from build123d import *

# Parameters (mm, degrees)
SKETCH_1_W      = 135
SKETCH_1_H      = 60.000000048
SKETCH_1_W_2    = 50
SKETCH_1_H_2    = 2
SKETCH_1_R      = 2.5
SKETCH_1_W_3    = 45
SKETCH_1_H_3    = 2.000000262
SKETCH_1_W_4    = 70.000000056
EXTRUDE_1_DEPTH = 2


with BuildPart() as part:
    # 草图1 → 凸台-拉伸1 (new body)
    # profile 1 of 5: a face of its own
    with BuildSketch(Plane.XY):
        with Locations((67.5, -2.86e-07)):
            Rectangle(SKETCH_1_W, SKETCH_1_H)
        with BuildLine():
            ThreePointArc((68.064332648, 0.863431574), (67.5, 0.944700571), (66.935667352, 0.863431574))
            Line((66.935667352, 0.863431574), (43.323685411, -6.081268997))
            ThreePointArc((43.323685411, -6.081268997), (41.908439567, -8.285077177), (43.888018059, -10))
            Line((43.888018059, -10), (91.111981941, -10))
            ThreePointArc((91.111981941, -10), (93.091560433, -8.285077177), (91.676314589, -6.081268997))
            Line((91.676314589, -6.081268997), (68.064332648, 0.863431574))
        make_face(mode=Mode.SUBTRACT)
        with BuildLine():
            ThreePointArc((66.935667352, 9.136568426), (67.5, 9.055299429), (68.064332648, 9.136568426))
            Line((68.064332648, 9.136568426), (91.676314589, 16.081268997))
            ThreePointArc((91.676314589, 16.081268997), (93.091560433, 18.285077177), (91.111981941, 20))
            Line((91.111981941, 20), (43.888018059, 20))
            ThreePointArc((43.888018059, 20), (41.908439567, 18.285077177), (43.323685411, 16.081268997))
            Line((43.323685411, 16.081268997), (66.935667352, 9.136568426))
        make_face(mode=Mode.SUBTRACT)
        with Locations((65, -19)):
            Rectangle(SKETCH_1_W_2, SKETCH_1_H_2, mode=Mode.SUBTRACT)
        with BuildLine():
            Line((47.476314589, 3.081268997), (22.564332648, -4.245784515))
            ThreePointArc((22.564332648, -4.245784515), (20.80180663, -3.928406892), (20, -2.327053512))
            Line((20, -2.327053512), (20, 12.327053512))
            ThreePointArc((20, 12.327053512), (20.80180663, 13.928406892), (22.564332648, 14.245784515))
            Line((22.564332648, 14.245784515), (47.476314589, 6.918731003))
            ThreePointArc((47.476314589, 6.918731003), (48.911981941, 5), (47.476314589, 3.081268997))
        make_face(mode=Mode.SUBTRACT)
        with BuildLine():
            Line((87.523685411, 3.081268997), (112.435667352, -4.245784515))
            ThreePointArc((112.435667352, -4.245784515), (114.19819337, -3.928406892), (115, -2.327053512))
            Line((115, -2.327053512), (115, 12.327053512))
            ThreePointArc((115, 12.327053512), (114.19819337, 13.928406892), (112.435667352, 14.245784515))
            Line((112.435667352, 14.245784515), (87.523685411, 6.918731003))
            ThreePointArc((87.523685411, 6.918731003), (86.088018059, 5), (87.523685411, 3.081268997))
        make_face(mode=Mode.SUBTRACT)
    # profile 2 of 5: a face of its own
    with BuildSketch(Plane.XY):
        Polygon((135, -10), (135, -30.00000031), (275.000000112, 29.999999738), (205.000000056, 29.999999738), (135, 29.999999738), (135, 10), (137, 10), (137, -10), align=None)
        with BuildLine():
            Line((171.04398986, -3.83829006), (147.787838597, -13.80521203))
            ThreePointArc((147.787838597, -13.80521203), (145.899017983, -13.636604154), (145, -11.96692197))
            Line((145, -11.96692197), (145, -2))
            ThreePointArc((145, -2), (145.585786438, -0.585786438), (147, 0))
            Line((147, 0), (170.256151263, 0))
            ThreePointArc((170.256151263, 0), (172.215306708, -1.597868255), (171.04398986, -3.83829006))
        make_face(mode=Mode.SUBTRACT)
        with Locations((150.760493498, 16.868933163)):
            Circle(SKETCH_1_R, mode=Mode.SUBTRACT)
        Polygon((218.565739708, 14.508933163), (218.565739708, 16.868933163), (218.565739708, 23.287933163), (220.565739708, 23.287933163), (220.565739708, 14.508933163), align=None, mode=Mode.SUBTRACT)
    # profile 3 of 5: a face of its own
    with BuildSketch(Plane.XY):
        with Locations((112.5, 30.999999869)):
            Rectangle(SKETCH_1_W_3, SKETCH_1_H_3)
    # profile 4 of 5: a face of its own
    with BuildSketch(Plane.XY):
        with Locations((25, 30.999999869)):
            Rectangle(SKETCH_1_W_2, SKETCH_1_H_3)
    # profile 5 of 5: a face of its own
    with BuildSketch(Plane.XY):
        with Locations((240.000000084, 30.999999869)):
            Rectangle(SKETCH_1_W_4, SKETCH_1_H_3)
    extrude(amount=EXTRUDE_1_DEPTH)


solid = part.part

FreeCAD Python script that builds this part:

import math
import FreeCAD as App
import Part
import Sketcher

V = App.Vector
Q = App.Units.Quantity

doc = App.newDocument("Part")
body = doc.addObject("PartDesign::Body", "Body")

# Sketch on XY plane
sketch1 = body.newObject("Sketcher::SketchObject", "Sketch")
sketch1.AttachmentSupport = (doc.getObject("XY_Plane"), [""])
sketch1.MapMode = "FlatFace"
sketch1.addGeometry([
    Part.LineSegment(V(0, -30, 0), V(135, -30, 0)),  # 0
    Part.LineSegment(V(135, -30, 0), V(275, 30, 0)),  # 1
    Part.LineSegment(V(275, 30, 0), V(275, 32, 0)),  # 2
    Part.LineSegment(V(275, 32, 0), V(205, 32, 0)),  # 3
    Part.LineSegment(V(205, 32, 0), V(205, 30, 0)),  # 4
    Part.LineSegment(V(205, 30, 0), V(135, 30, 0)),  # 5
    Part.LineSegment(V(135, 30, 0), V(135, 32, 0)),  # 6
    Part.LineSegment(V(135, 32, 0), V(90, 32, 0)),  # 7
    Part.LineSegment(V(90, 32, 0), V(90, 30, 0)),  # 8
    Part.LineSegment(V(90, 30, 0), V(50, 30, 0)),  # 9
    Part.LineSegment(V(50, 30, 0), V(50, 32, 0)),  # 10
    Part.LineSegment(V(50, 32, 0), V(0, 32, 0)),  # 11
    Part.LineSegment(V(0, 32, 0), V(0, -30, 0)),  # 12
    Part.LineSegment(V(135, -10, 0), V(135, 10, 0)),  # 13
    Part.LineSegment(V(135, 10, 0), V(137, 10, 0)),  # 14
    Part.LineSegment(V(137, 10, 0), V(137, -10, 0)),  # 15
    Part.LineSegment(V(137, -10, 0), V(135, -10, 0)),  # 16
    Part.LineSegment(V(90, -20, 0), V(40, -20, 0)),  # 17
    Part.LineSegment(V(40, -20, 0), V(40, -18, 0)),  # 18
    Part.LineSegment(V(40, -18, 0), V(90, -18, 0)),  # 19
    Part.LineSegment(V(90, -18, 0), V(90, -20, 0)),  # 20
    Part.ArcOfCircle(Part.Circle(V(67.5, -1.055299, 0), V(0, 0, 1), 2), math.radians(73.61046), math.radians(106.38954)),  # 21
    Part.LineSegment(V(68.064333, 0.863432, 0), V(91.676315, -6.081269, 0)),  # 22
    Part.ArcOfCircle(Part.Circle(V(91.111982, -8, 0), V(0, 0, 1), 2), math.radians(-90), math.radians(73.61046)),  # 23
    Part.LineSegment(V(91.111982, -10, 0), V(43.888018, -10, 0)),  # 24
    Part.ArcOfCircle(Part.Circle(V(43.888018, -8, 0), V(0, 0, 1), 2), math.radians(106.38954), math.radians(270)),  # 25
    Part.LineSegment(V(43.323685, -6.081269, 0), V(66.935667, 0.863432, 0)),  # 26
    Part.ArcOfCircle(Part.Circle(V(46.911982, 5, 0), V(0, 0, 1), 2), math.radians(-73.61046), math.radians(73.61046)),  # 27
    Part.LineSegment(V(47.476315, 3.081269, 0), V(22.564333, -4.245785, 0)),  # 28
    Part.ArcOfCircle(Part.Circle(V(22, -2.327054, 0), V(0, 0, 1), 2), math.radians(180), math.radians(286.38954)),  # 29
    Part.LineSegment(V(20, -2.327054, 0), V(20, 12.327054, 0)),  # 30
    Part.ArcOfCircle(Part.Circle(V(22, 12.327054, 0), V(0, 0, 1), 2), math.radians(73.61046), math.radians(180)),  # 31
    Part.LineSegment(V(22.564333, 14.245785, 0), V(47.476315, 6.918731, 0)),  # 32
    Part.LineSegment(V(112.435667, -4.245785, 0), V(87.523685, 3.081269, 0)),  # 33
    Part.ArcOfCircle(Part.Circle(V(88.088018, 5, 0), V(0, 0, 1), 2), math.radians(106.38954), math.radians(253.61046)),  # 34
    Part.LineSegment(V(87.523685, 6.918731, 0), V(112.435667, 14.245785, 0)),  # 35
    Part.ArcOfCircle(Part.Circle(V(113, 12.327054, 0), V(0, 0, 1), 2), math.radians(0), math.radians(106.38954)),  # 36
    Part.LineSegment(V(115, 12.327054, 0), V(115, -2.327054, 0)),  # 37
    Part.ArcOfCircle(Part.Circle(V(113, -2.327054, 0), V(0, 0, 1), 2), math.radians(-106.38954), math.radians(0)),  # 38
    Part.ArcOfCircle(Part.Circle(V(67.5, 11.055299, 0), V(0, 0, 1), 2), math.radians(-106.38954), math.radians(-73.61046)),  # 39
    Part.LineSegment(V(66.935667, 9.136568, 0), V(43.323685, 16.081269, 0)),  # 40
    Part.ArcOfCircle(Part.Circle(V(43.888018, 18, 0), V(0, 0, 1), 2), math.radians(90), math.radians(253.61046)),  # 41
    Part.LineSegment(V(43.888018, 20, 0), V(91.111982, 20, 0)),  # 42
    Part.ArcOfCircle(Part.Circle(V(91.111982, 18, 0), V(0, 0, 1), 2), math.radians(-73.61046), math.radians(90)),  # 43
    Part.LineSegment(V(91.676315, 16.081269, 0), V(68.064333, 9.136568, 0)),  # 44
    Part.LineSegment(V(220.56574, 23.287933, 0), V(220.56574, 14.508933, 0)),  # 45
    Part.LineSegment(V(220.56574, 14.508933, 0), V(218.56574, 14.508933, 0)),  # 46
    Part.LineSegment(V(218.56574, 14.508933, 0), V(218.56574, 23.287933, 0)),  # 47
    Part.LineSegment(V(218.56574, 23.287933, 0), V(220.56574, 23.287933, 0)),  # 48
    Part.ArcOfCircle(Part.Circle(V(170.256151, -2, 0), V(0, 0, 1), 2), math.radians(-66.801409), math.radians(90)),  # 49
    Part.LineSegment(V(171.04399, -3.83829, 0), V(147.787839, -13.805212, 0)),  # 50
    Part.ArcOfCircle(Part.Circle(V(147, -11.966922, 0), V(0, 0, 1), 2), math.radians(-180), math.radians(-66.80141)),  # 51
    Part.LineSegment(V(145, -11.966922, 0), V(145, -2, 0)),  # 52
    Part.ArcOfCircle(Part.Circle(V(147, -2, 0), V(0, 0, 1), 2), math.radians(90), math.radians(180)),  # 53
    Part.LineSegment(V(147, 0, 0), V(170.256151, 0, 0)),  # 54
    Part.Circle(V(150.760493, 16.868933, 0), V(0, 0, 1), 2.5),  # 55
], False)
sketch1.addConstraint([
    Sketcher.Constraint("Coincident", 0, 2, 1, 1),
    Sketcher.Constraint("Coincident", 1, 2, 2, 1),
    Sketcher.Constraint("Coincident", 2, 2, 3, 1),
    Sketcher.Constraint("Coincident", 3, 2, 4, 1),
    Sketcher.Constraint("Coincident", 4, 2, 5, 1),
    Sketcher.Constraint("Coincident", 5, 2, 6, 1),
    Sketcher.Constraint("Coincident", 6, 2, 7, 1),
    Sketcher.Constraint("Coincident", 7, 2, 8, 1),
    Sketcher.Constraint("Coincident", 8, 2, 9, 1),
    Sketcher.Constraint("Coincident", 9, 2, 10, 1),
    Sketcher.Constraint("Coincident", 10, 2, 11, 1),
    Sketcher.Constraint("Coincident", 11, 2, 12, 1),
    Sketcher.Constraint("Coincident", 12, 2, 0, 1),
    Sketcher.Constraint("Coincident", 13, 2, 14, 1),
    Sketcher.Constraint("Coincident", 14, 2, 15, 1),
    Sketcher.Constraint("Coincident", 15, 2, 16, 1),
    Sketcher.Constraint("Coincident", 16, 2, 13, 1),
    Sketcher.Constraint("Coincident", 17, 2, 18, 1),
    Sketcher.Constraint("Coincident", 18, 2, 19, 1),
    Sketcher.Constraint("Coincident", 19, 2, 20, 1),
    Sketcher.Constraint("Coincident", 20, 2, 17, 1),
    Sketcher.Constraint("Tangent", 21, 1, 22, 1),
    Sketcher.Constraint("Tangent", 22, 2, 23, 2),
    Sketcher.Constraint("Tangent", 23, 1, 24, 1),
    Sketcher.Constraint("Tangent", 24, 2, 25, 2),
    Sketcher.Constraint("Tangent", 25, 1, 26, 1),
    Sketcher.Constraint("Tangent", 26, 2, 21, 2),
    Sketcher.Constraint("Tangent", 27, 1, 28, 1),
    Sketcher.Constraint("Tangent", 28, 2, 29, 2),
    Sketcher.Constraint("Tangent", 29, 1, 30, 1),
    Sketcher.Constraint("Tangent", 30, 2, 31, 2),
    Sketcher.Constraint("Tangent", 31, 1, 32, 1),
    Sketcher.Constraint("Tangent", 32, 2, 27, 2),
    Sketcher.Constraint("Tangent", 33, 2, 34, 2),
    Sketcher.Constraint("Tangent", 34, 1, 35, 1),
    Sketcher.Constraint("Tangent", 35, 2, 36, 2),
    Sketcher.Constraint("Tangent", 36, 1, 37, 1),
    Sketcher.Constraint("Tangent", 37, 2, 38, 2),
    Sketcher.Constraint("Tangent", 38, 1, 33, 1),
    Sketcher.Constraint("Tangent", 39, 1, 40, 1),
    Sketcher.Constraint("Tangent", 40, 2, 41, 2),
    Sketcher.Constraint("Tangent", 41, 1, 42, 1),
    Sketcher.Constraint("Tangent", 42, 2, 43, 2),
    Sketcher.Constraint("Tangent", 43, 1, 44, 1),
    Sketcher.Constraint("Tangent", 44, 2, 39, 2),
    Sketcher.Constraint("Coincident", 45, 2, 46, 1),
    Sketcher.Constraint("Coincident", 46, 2, 47, 1),
    Sketcher.Constraint("Coincident", 47, 2, 48, 1),
    Sketcher.Constraint("Coincident", 48, 2, 45, 1),
    Sketcher.Constraint("Tangent", 49, 1, 50, 1),
    Sketcher.Constraint("Tangent", 50, 2, 51, 2),
    Sketcher.Constraint("Tangent", 51, 1, 52, 1),
    Sketcher.Constraint("Tangent", 52, 2, 53, 2),
    Sketcher.Constraint("Tangent", 53, 1, 54, 1),
    Sketcher.Constraint("Tangent", 54, 2, 49, 2),
    Sketcher.Constraint("Horizontal", 0),
    Sketcher.Constraint("Vertical", 2),
    Sketcher.Constraint("Horizontal", 3),
    Sketcher.Constraint("Vertical", 4),
    Sketcher.Constraint("Horizontal", 5),
    Sketcher.Constraint("Vertical", 6),
    Sketcher.Constraint("Horizontal", 7),
    Sketcher.Constraint("Vertical", 8),
    Sketcher.Constraint("Horizontal", 9),
    Sketcher.Constraint("Vertical", 10),
    Sketcher.Constraint("Horizontal", 11),
    Sketcher.Constraint("Vertical", 12),
    Sketcher.Constraint("Vertical", 13),
    Sketcher.Constraint("Horizontal", 14),
    Sketcher.Constraint("Vertical", 15),
    Sketcher.Constraint("Horizontal", 16),
    Sketcher.Constraint("Horizontal", 17),
    Sketcher.Constraint("Vertical", 18),
    Sketcher.Constraint("Horizontal", 19),
    Sketcher.Constraint("Vertical", 20),
    Sketcher.Constraint("Horizontal", 24),
    Sketcher.Constraint("Vertical", 30),
    Sketcher.Constraint("Vertical", 37),
    Sketcher.Constraint("Horizontal", 42),
    Sketcher.Constraint("Vertical", 45),
    Sketcher.Constraint("Horizontal", 46),
    Sketcher.Constraint("Vertical", 47),
    Sketcher.Constraint("Horizontal", 48),
    Sketcher.Constraint("Vertical", 52),
    Sketcher.Constraint("Horizontal", 54),
    Sketcher.Constraint("Equal", 21, 23),
    Sketcher.Constraint("Equal", 23, 25),
    Sketcher.Constraint("Equal", 25, 27),
    Sketcher.Constraint("Equal", 27, 29),
    Sketcher.Constraint("Equal", 29, 31),
    Sketcher.Constraint("Equal", 31, 34),
    Sketcher.Constraint("Equal", 34, 36),
    Sketcher.Constraint("Equal", 36, 38),
    Sketcher.Constraint("Equal", 38, 39),
    Sketcher.Constraint("Equal", 39, 41),
    Sketcher.Constraint("Equal", 41, 43),
    Sketcher.Constraint("Equal", 43, 49),
    Sketcher.Constraint("Equal", 49, 51),
    Sketcher.Constraint("Equal", 51, 53),
    Sketcher.Constraint("Symmetric", 0, 2, 5, 2, -1),
    Sketcher.Constraint("PointOnObject", 11, 2, -2),
    Sketcher.Constraint("PointOnObject", 53, 1, -1),
    Sketcher.Constraint("Parallel", 26, 28),
    Sketcher.Constraint("Parallel", 22, 32),
    Sketcher.Constraint("Parallel", 32, 33),
    Sketcher.Constraint("Parallel", 28, 35),
    Sketcher.Constraint("Parallel", 33, 40),
    Sketcher.Constraint("Parallel", 35, 44),
    Sketcher.Constraint("Parallel", 1, 50),
    Sketcher.Constraint("Horizontal", 27, 3, 34, 3),
    Sketcher.Constraint("Horizontal", 31, 3, 36, 3),
    Sketcher.Constraint("Horizontal", 29, 3, 38, 3),
    Sketcher.Constraint("Horizontal", 1, 2, 4, 2),
    Sketcher.Constraint("Horizontal", 3, 2, 6, 2),
    Sketcher.Constraint("Horizontal", 5, 2, 8, 2),
    Sketcher.Constraint("Horizontal", 7, 2, 10, 2),
    Sketcher.Constraint("Horizontal", 16, 2, 23, 1),
    Sketcher.Constraint("Vertical", 21, 3, 39, 3),
    Sketcher.Constraint("Vertical", 25, 3, 41, 3),
    Sketcher.Constraint("Vertical", 6, 2, 13, 2),
    Sketcher.Constraint("Vertical", 8, 2, 19, 2),
    Sketcher.Constraint("Equal", 3, 5),
    Sketcher.Constraint("Equal", 11, 17),
    Sketcher.Constraint("Equal", 16, 46),
    Sketcher.Constraint("Equal", 48, 2),
    Sketcher.Constraint("Equal", 10, 18),
    Sketcher.Constraint("Diameter", 55, Q("5 mm")),
    Sketcher.Constraint("Radius", 21, Q("2 mm")),
    Sketcher.Constraint("DistanceX", 0, 1, 0, 2, Q("135 mm")),
    Sketcher.Constraint("DistanceX", 3, 2, 3, 1, Q("70 mm")),
    Sketcher.Constraint("DistanceX", 7, 2, 7, 1, Q("45 mm")),
    Sketcher.Constraint("DistanceX", 9, 2, 9, 1, Q("40 mm")),
    Sketcher.Constraint("DistanceX", 14, 1, 14, 2, Q("2 mm")),
    Sketcher.Constraint("DistanceY", 12, 2, 12, 1, Q("62 mm")),
    Sketcher.Constraint("DistanceY", 13, 1, 13, 2, Q("20 mm")),
    Sketcher.Constraint("DistanceY", 23, 3, -1, 1, Q("8 mm")),
    Sketcher.Constraint("DistanceY", -1, 1, 27, 3, Q("5 mm")),
    Sketcher.Constraint("DistanceX", -1, 1, 29, 3, Q("22 mm")),
    Sketcher.Constraint("DistanceX", -1, 1, 36, 3, Q("113 mm")),
    Sketcher.Constraint("DistanceY", -1, 1, 41, 3, Q("18 mm")),
    Sketcher.Constraint("DistanceX", -1, 1, 51, 3, Q("147 mm")),
    Sketcher.Constraint("DistanceY", 17, 2, -1, 1, Q("20 mm")),
    Sketcher.Constraint("DistanceX", -1, 1, 21, 3, Q("67.5 mm")),
    Sketcher.Constraint("DistanceY", 45, 2, 45, 1, Q("8.779 mm")),
    Sketcher.Constraint("DistanceX", 54, 1, 54, 2, Q("23.256151 mm")),
    Sketcher.Constraint("DistanceY", 21, 3, -1, 1, Q("1.055299 mm")),
    Sketcher.Constraint("Distance", 22, Q("24.612082 mm")),
    Sketcher.Constraint("DistanceY", 30, 1, 30, 2, Q("14.654107 mm")),
    Sketcher.Constraint("DistanceX", -1, 1, 45, 2, Q("220.56574 mm")),
    Sketcher.Constraint("DistanceX", -1, 1, 55, 3, Q("150.760493 mm")),
    Sketcher.Constraint("DistanceY", -1, 1, 55, 3, Q("16.868933 mm")),
    Sketcher.Constraint("DistanceY", -1, 1, 45, 2, Q("14.508933 mm")),
])
pad1 = body.newObject("PartDesign::Pad", "Pad")
pad1.Profile = sketch1
pad1.Length = 2

doc.recompute()
